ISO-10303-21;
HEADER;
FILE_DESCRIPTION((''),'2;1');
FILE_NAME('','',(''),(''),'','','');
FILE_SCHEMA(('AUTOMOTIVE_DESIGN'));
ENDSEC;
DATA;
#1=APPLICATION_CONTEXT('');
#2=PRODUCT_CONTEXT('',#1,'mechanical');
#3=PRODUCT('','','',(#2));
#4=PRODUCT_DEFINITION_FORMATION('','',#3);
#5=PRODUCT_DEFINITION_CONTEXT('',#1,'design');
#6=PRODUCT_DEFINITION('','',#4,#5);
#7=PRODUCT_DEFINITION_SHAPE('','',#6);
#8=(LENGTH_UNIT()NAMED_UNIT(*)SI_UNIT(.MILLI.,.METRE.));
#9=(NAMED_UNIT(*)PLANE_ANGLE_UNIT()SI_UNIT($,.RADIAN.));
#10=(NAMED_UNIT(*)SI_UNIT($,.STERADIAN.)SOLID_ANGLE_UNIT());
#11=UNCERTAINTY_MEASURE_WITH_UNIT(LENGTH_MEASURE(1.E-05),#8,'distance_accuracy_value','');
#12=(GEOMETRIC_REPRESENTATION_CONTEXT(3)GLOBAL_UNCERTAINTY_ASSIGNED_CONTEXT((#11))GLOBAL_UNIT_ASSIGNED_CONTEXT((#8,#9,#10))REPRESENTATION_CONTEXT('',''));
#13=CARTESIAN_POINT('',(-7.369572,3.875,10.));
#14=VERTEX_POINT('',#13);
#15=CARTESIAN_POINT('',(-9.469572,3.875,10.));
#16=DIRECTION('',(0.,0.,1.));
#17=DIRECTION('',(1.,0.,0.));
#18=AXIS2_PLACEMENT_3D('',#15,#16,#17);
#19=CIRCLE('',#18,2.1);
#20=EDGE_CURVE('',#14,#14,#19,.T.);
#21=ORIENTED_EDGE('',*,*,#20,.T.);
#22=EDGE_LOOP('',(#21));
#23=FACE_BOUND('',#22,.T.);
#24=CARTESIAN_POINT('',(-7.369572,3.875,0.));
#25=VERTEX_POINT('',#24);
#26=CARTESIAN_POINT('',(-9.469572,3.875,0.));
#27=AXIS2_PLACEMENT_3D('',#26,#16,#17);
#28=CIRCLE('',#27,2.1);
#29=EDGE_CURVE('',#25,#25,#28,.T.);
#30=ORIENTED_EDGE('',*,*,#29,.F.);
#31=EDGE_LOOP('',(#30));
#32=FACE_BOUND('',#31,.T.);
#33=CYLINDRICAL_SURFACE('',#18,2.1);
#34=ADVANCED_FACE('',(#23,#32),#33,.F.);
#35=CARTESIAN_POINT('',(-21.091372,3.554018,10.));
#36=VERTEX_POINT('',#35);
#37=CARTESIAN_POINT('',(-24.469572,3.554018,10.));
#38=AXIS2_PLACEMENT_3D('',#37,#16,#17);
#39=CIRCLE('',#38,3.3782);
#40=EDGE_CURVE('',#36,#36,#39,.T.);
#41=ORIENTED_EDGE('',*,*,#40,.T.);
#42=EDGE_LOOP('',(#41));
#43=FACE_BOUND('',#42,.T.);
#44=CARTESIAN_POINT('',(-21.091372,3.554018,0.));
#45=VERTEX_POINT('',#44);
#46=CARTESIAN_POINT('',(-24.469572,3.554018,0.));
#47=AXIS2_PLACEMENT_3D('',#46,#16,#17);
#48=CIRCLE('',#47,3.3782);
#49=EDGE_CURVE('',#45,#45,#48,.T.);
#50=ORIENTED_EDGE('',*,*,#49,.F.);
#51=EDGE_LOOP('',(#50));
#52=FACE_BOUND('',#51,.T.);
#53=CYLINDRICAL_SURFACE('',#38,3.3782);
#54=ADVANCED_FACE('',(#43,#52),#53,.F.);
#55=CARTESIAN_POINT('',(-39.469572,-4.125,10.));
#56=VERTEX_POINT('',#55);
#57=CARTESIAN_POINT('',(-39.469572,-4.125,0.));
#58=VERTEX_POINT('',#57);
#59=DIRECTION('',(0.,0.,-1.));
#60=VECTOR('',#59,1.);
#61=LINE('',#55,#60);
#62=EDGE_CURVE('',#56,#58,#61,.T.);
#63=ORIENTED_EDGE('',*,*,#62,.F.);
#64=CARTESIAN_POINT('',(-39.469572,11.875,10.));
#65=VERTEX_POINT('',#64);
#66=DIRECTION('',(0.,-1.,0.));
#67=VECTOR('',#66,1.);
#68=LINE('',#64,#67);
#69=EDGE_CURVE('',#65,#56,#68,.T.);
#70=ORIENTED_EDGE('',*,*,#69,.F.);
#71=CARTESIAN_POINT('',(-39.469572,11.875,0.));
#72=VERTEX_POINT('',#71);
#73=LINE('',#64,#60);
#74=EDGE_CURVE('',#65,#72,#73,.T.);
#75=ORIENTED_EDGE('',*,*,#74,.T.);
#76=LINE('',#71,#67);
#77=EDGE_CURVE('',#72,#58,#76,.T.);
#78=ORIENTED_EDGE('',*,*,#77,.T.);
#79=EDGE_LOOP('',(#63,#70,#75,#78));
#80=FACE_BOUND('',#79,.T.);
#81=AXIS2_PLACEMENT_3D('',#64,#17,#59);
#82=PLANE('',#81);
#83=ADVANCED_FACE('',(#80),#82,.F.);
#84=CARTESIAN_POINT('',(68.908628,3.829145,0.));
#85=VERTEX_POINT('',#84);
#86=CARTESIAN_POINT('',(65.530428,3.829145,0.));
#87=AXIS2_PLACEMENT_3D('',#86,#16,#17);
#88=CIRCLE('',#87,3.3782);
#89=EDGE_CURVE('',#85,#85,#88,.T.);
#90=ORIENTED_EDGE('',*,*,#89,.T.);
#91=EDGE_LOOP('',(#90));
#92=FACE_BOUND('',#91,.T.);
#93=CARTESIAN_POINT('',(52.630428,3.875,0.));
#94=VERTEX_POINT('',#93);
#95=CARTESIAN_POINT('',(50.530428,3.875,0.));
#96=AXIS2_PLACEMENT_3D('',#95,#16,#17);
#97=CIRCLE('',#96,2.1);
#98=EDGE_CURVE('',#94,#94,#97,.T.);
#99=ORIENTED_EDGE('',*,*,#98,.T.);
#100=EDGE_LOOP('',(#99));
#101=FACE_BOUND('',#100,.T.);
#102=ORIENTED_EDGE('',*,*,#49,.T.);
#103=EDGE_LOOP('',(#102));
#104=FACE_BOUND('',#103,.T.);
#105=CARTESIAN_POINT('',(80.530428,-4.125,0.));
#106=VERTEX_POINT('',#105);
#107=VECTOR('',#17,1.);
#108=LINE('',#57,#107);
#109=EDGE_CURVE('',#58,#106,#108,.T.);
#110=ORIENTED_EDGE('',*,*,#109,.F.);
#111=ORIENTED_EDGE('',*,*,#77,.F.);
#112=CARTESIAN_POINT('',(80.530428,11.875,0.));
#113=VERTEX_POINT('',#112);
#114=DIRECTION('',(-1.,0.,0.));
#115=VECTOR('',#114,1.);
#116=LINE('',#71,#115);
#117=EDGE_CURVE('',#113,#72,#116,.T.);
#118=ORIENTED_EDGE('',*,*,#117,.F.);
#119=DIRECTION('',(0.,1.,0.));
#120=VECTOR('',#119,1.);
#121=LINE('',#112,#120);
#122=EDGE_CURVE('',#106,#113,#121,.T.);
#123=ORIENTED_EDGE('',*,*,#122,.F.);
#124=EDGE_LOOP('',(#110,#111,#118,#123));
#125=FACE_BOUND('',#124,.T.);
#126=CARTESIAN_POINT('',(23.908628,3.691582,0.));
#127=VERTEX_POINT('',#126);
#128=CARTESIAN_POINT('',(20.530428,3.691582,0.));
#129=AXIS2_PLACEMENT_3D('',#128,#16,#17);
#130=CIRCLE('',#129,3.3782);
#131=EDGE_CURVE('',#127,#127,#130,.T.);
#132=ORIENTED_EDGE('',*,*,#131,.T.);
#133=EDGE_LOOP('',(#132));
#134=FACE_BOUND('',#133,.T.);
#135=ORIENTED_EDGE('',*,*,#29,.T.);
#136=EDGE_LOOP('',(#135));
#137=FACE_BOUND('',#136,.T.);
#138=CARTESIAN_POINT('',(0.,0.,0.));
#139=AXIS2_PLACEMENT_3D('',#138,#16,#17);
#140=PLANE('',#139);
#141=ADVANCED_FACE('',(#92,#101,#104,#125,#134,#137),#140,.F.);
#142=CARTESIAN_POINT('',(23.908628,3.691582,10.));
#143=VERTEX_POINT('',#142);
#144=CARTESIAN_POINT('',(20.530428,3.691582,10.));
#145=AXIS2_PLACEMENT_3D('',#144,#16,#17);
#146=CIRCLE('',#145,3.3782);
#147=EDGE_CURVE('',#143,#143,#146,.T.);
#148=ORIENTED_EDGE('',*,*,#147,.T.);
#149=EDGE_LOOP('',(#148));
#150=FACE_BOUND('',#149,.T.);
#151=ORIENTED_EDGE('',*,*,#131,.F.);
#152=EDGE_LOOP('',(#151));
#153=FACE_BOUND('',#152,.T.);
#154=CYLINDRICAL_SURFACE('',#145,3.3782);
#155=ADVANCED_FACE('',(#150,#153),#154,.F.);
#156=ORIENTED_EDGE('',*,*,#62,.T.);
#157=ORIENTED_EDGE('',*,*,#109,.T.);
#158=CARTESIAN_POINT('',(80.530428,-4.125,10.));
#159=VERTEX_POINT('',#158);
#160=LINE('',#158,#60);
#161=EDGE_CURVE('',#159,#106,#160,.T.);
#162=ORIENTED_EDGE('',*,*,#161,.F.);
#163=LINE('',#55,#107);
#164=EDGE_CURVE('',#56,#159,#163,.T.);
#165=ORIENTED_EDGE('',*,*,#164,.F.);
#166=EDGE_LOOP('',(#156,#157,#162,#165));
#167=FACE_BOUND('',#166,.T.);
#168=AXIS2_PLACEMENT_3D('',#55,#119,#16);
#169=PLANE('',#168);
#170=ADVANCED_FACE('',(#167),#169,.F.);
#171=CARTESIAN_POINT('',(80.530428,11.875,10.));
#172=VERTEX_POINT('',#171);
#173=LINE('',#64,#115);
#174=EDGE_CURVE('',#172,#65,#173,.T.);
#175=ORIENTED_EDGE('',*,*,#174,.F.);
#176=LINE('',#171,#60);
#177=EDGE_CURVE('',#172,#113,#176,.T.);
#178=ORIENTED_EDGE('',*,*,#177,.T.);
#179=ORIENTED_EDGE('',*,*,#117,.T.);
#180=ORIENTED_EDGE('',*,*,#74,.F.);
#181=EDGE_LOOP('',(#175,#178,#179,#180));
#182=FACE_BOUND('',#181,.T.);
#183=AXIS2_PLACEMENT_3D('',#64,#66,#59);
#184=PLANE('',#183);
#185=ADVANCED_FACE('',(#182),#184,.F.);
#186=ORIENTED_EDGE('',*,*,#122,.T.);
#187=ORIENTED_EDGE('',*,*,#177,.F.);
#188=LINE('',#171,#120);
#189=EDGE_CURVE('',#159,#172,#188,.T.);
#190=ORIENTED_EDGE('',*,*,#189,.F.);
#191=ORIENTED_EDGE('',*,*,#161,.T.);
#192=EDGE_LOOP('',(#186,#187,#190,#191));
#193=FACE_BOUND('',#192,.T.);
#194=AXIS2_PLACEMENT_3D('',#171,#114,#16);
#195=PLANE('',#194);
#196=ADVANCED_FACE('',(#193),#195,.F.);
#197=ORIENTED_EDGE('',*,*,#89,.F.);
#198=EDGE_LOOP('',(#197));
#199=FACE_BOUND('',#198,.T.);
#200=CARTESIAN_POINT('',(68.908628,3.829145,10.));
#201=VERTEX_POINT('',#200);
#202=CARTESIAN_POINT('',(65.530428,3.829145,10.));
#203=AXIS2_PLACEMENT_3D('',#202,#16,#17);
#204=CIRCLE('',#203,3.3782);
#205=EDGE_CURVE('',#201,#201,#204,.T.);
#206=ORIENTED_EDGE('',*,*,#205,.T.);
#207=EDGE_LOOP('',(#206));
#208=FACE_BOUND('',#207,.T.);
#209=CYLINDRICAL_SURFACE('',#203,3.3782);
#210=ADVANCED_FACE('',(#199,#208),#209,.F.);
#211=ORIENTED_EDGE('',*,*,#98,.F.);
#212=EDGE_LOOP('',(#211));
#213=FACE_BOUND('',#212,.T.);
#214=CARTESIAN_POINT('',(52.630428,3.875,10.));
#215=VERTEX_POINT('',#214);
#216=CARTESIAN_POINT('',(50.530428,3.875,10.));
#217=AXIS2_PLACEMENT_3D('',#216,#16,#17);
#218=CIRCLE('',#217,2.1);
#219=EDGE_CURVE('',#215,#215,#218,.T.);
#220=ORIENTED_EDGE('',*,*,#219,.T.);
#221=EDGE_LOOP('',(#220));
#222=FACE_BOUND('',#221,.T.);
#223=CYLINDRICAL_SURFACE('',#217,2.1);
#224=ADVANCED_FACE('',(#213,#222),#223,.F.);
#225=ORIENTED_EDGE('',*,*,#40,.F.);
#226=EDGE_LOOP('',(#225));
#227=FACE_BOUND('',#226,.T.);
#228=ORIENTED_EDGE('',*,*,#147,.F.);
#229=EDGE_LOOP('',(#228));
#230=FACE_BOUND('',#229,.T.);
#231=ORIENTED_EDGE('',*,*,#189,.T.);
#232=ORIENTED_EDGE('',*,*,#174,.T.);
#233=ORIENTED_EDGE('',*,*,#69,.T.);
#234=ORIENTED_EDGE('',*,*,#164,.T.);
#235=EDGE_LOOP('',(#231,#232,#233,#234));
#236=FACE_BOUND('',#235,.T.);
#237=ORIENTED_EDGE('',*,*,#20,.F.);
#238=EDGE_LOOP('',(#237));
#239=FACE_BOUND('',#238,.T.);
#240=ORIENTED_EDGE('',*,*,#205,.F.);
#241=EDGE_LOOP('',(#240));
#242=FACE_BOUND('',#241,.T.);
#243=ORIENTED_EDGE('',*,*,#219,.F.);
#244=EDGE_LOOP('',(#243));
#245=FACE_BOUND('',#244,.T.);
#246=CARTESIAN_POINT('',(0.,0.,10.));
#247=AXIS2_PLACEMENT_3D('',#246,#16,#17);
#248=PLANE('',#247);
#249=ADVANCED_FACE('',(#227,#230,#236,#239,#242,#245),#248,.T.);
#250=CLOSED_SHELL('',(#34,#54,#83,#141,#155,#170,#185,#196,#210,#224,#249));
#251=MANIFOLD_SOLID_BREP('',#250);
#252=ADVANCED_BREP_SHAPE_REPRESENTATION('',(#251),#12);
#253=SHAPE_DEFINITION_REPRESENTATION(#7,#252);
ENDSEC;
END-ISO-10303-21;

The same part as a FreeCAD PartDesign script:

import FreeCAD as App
import Part
import Sketcher

V = App.Vector
Q = App.Units.Quantity

doc = App.newDocument("Part")
body = doc.addObject("PartDesign::Body", "Body")

# Sketch on XY plane
sketch1 = body.newObject("Sketcher::SketchObject", "Sketch")
sketch1.AttachmentSupport = (doc.getObject("XY_Plane"), [""])
sketch1.MapMode = "FlatFace"
sketch1.addGeometry(Part.LineSegment(V(-39, 12, 0), V(-39, -4, 0)), False)
sketch1.addGeometry(Part.LineSegment(V(-39, -4, 0), V(81, -4, 0)), False)
sketch1.addGeometry(Part.LineSegment(V(81, -4, 0), V(81, 12, 0)), False)
sketch1.addGeometry(Part.LineSegment(V(81, 12, 0), V(-39, 12, 0)), False)
sketch1.addConstraint(Sketcher.Constraint("Coincident", 0, 2, 1, 1))
sketch1.addConstraint(Sketcher.Constraint("Coincident", 1, 2, 2, 1))
sketch1.addConstraint(Sketcher.Constraint("Coincident", 2, 2, 3, 1))
sketch1.addConstraint(Sketcher.Constraint("Coincident", 3, 2, 0, 1))
sketch1.addConstraint(Sketcher.Constraint("Vertical", 0))
sketch1.addConstraint(Sketcher.Constraint("Horizontal", 1))
sketch1.addConstraint(Sketcher.Constraint("Vertical", 2))
sketch1.addConstraint(Sketcher.Constraint("Horizontal", 3))
sketch1.addConstraint(Sketcher.Constraint("DistanceX", 1, 1, 1, 2, Q("120 mm")))
sketch1.addConstraint(Sketcher.Constraint("DistanceY", 0, 2, 0, 1, Q("16 mm")))
sketch1.addConstraint(Sketcher.Constraint("DistanceY", 0, 2, -1, 1, Q("4.125 mm")))
sketch1.addConstraint(Sketcher.Constraint("DistanceX", 0, 2, -1, 1, Q("39.469572 mm")))
pad1 = body.newObject("PartDesign::Pad", "Pad")
pad1.Profile = sketch1
pad1.Length = 10

# Sketch on XY plane
sketch2 = body.newObject("Sketcher::SketchObject", "Sketch001")
sketch2.AttachmentSupport = (doc.getObject("XY_Plane"), [""])
sketch2.MapMode = "FlatFace"
sketch2.AttachmentOffset = App.Placement(V(0, 0, 10), App.Rotation())
sketch2.addGeometry(Part.Circle(V(-9.5, 3.9, 0), V(0, 0, 1), 2.1), False)
sketch2.addGeometry(Part.Circle(V(50.5, 3.9, 0), V(0, 0, 1), 2.1), False)
sketch2.addConstraint(Sketcher.Constraint("Equal", 0, 1))
sketch2.addConstraint(Sketcher.Constraint("Horizontal", 0, 3, 1, 3))
sketch2.addConstraint(Sketcher.Constraint("Diameter", 0, Q("4.2 mm")))
sketch2.addConstraint(Sketcher.Constraint("DistanceX", 0, 3, 1, 3, Q("60 mm")))
sketch2.addConstraint(Sketcher.Constraint("DistanceY", -1, 1, 0, 3, Q("3.875 mm")))
sketch2.addConstraint(Sketcher.Constraint("DistanceX", 0, 3, -1, 1, Q("9.469572 mm")))
doc.recompute()
hole = body.newObject("PartDesign::Hole", "Hole")
hole.Profile = sketch2
hole.ThreadType = "None"
hole.Diameter = 4.2
hole.DepthType = "ThroughAll"

# Sketch on XY plane
sketch3 = body.newObject("Sketcher::SketchObject", "Sketch002")
sketch3.AttachmentSupport = (doc.getObject("XY_Plane"), [""])
sketch3.MapMode = "FlatFace"
sketch3.AttachmentOffset = App.Placement(V(0, 0, 10), App.Rotation())
sketch3.addGeometry(Part.Circle(V(-24.5, 3.6, 0), V(0, 0, 1), 3.4), False)
sketch3.addGeometry(Part.Circle(V(20.5, 3.7, 0), V(0, 0, 1), 3.4), False)
sketch3.addGeometry(Part.Circle(V(65.5, 3.8, 0), V(0, 0, 1), 3.4), False)
sketch3.addConstraint(Sketcher.Constraint("Equal", 0, 1))
sketch3.addConstraint(Sketcher.Constraint("Equal", 1, 2))
sketch3.addConstraint(Sketcher.Constraint("DistanceX", 0, 3, 1, 3, Q("45 mm")))
sketch3.addConstraint(Sketcher.Constraint("DistanceX", 1, 3, 2, 3, Q("45 mm")))
sketch3.addConstraint(Sketcher.Constraint("Diameter", 0, Q("6.7564 mm")))
sketch3.addConstraint(Sketcher.Constraint("DistanceY", -1, 1, 0, 3, Q("3.554018 mm")))
sketch3.addConstraint(Sketcher.Constraint("DistanceY", -1, 1, 1, 3, Q("3.691582 mm")))
sketch3.addConstraint(Sketcher.Constraint("DistanceX", 0, 3, -1, 1, Q("24.469572 mm")))
sketch3.addConstraint(Sketcher.Constraint("DistanceY", -1, 1, 2, 3, Q("3.829145 mm")))
doc.recompute()
hole2 = body.newObject("PartDesign::Hole", "Hole001")
hole2.Profile = sketch3
hole2.ThreadType = "None"
hole2.Diameter = 6.7564
hole2.DepthType = "ThroughAll"

doc.recompute()
